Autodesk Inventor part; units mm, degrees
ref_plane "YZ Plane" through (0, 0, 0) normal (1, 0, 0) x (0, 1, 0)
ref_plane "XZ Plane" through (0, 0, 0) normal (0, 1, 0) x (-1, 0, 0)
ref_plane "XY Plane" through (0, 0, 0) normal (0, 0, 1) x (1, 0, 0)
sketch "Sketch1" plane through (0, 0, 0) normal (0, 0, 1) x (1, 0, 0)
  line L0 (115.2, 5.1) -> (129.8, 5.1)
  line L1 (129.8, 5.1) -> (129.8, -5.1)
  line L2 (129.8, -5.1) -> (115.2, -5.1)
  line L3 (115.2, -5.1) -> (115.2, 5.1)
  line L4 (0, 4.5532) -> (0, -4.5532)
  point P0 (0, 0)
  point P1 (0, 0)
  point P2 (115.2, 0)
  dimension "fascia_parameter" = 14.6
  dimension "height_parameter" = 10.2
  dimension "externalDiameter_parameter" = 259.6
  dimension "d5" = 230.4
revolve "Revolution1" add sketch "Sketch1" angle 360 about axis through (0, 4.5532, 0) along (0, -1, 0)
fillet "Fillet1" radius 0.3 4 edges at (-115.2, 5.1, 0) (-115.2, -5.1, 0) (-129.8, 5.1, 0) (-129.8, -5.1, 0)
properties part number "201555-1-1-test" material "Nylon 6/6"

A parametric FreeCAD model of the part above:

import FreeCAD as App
import Part
import Sketcher

V = App.Vector
Q = App.Units.Quantity


def edges_at(feature, points):
    """Names of the edges that pass closest to the given points."""
    edges = feature.Shape.Edges
    near = lambda p: min(range(len(edges)), key=lambda i: edges[i].distToShape(Part.Vertex(*p))[0])
    return sorted({f"Edge{near(p) + 1}" for p in points})

doc = App.newDocument("Part")
body = doc.addObject("PartDesign::Body", "Body")

# Sketch on XY plane
sketch1 = doc.addObject("Sketcher::SketchObject", "Sketch")
body.addObject(sketch1)
sketch1.AttachmentSupport = (doc.XY_Plane, [""])
sketch1.MapMode = "FlatFace"
sketch1.addGeometry(Part.LineSegment(V(130, 5, 0), V(115, 5, 0)), False)
sketch1.addGeometry(Part.LineSegment(V(115, 5, 0), V(115, -5, 0)), False)
sketch1.addGeometry(Part.LineSegment(V(115, -5, 0), V(130, -5, 0)), False)
sketch1.addGeometry(Part.LineSegment(V(130, -5, 0), V(130, 5, 0)), False)
sketch1.addConstraint(Sketcher.Constraint("Coincident", 0, 2, 1, 1))
sketch1.addConstraint(Sketcher.Constraint("Coincident", 1, 2, 2, 1))
sketch1.addConstraint(Sketcher.Constraint("Coincident", 2, 2, 3, 1))
sketch1.addConstraint(Sketcher.Constraint("Coincident", 3, 2, 0, 1))
sketch1.addConstraint(Sketcher.Constraint("Horizontal", 0))
sketch1.addConstraint(Sketcher.Constraint("Vertical", 1))
sketch1.addConstraint(Sketcher.Constraint("Horizontal", 2))
sketch1.addConstraint(Sketcher.Constraint("Vertical", 3))
sketch1.addConstraint(Sketcher.Constraint("DistanceX", 0, 2, 0, 1, Q("14.6 mm")))
sketch1.addConstraint(Sketcher.Constraint("DistanceY", 1, 2, 1, 1, Q("10.2 mm")))
sketch1.addConstraint(Sketcher.Constraint("DistanceX", -1, 1, 0, 2, Q("115.2 mm")))
sketch1.addConstraint(Sketcher.Constraint("DistanceY", -1, 1, 0, 2, Q("5.1 mm")))
revolution = doc.addObject("PartDesign::Revolution", "Revolution")
body.addObject(revolution)
revolution.Profile = sketch1
revolution.ReferenceAxis = (sketch1, ["V_Axis"])
revolution.Angle = 360
doc.recompute()

fillet = doc.addObject("PartDesign::Fillet", "Fillet")
body.addObject(fillet)
fillet.Base = (revolution, edges_at(revolution, [
    (-115.2, 5.1, 0),
    (-115.2, -5.1, 0),
    (-129.8, 5.1, 0),
    (-129.8, -5.1, 0),
]))
fillet.Radius = 0.3

doc.recompute()
